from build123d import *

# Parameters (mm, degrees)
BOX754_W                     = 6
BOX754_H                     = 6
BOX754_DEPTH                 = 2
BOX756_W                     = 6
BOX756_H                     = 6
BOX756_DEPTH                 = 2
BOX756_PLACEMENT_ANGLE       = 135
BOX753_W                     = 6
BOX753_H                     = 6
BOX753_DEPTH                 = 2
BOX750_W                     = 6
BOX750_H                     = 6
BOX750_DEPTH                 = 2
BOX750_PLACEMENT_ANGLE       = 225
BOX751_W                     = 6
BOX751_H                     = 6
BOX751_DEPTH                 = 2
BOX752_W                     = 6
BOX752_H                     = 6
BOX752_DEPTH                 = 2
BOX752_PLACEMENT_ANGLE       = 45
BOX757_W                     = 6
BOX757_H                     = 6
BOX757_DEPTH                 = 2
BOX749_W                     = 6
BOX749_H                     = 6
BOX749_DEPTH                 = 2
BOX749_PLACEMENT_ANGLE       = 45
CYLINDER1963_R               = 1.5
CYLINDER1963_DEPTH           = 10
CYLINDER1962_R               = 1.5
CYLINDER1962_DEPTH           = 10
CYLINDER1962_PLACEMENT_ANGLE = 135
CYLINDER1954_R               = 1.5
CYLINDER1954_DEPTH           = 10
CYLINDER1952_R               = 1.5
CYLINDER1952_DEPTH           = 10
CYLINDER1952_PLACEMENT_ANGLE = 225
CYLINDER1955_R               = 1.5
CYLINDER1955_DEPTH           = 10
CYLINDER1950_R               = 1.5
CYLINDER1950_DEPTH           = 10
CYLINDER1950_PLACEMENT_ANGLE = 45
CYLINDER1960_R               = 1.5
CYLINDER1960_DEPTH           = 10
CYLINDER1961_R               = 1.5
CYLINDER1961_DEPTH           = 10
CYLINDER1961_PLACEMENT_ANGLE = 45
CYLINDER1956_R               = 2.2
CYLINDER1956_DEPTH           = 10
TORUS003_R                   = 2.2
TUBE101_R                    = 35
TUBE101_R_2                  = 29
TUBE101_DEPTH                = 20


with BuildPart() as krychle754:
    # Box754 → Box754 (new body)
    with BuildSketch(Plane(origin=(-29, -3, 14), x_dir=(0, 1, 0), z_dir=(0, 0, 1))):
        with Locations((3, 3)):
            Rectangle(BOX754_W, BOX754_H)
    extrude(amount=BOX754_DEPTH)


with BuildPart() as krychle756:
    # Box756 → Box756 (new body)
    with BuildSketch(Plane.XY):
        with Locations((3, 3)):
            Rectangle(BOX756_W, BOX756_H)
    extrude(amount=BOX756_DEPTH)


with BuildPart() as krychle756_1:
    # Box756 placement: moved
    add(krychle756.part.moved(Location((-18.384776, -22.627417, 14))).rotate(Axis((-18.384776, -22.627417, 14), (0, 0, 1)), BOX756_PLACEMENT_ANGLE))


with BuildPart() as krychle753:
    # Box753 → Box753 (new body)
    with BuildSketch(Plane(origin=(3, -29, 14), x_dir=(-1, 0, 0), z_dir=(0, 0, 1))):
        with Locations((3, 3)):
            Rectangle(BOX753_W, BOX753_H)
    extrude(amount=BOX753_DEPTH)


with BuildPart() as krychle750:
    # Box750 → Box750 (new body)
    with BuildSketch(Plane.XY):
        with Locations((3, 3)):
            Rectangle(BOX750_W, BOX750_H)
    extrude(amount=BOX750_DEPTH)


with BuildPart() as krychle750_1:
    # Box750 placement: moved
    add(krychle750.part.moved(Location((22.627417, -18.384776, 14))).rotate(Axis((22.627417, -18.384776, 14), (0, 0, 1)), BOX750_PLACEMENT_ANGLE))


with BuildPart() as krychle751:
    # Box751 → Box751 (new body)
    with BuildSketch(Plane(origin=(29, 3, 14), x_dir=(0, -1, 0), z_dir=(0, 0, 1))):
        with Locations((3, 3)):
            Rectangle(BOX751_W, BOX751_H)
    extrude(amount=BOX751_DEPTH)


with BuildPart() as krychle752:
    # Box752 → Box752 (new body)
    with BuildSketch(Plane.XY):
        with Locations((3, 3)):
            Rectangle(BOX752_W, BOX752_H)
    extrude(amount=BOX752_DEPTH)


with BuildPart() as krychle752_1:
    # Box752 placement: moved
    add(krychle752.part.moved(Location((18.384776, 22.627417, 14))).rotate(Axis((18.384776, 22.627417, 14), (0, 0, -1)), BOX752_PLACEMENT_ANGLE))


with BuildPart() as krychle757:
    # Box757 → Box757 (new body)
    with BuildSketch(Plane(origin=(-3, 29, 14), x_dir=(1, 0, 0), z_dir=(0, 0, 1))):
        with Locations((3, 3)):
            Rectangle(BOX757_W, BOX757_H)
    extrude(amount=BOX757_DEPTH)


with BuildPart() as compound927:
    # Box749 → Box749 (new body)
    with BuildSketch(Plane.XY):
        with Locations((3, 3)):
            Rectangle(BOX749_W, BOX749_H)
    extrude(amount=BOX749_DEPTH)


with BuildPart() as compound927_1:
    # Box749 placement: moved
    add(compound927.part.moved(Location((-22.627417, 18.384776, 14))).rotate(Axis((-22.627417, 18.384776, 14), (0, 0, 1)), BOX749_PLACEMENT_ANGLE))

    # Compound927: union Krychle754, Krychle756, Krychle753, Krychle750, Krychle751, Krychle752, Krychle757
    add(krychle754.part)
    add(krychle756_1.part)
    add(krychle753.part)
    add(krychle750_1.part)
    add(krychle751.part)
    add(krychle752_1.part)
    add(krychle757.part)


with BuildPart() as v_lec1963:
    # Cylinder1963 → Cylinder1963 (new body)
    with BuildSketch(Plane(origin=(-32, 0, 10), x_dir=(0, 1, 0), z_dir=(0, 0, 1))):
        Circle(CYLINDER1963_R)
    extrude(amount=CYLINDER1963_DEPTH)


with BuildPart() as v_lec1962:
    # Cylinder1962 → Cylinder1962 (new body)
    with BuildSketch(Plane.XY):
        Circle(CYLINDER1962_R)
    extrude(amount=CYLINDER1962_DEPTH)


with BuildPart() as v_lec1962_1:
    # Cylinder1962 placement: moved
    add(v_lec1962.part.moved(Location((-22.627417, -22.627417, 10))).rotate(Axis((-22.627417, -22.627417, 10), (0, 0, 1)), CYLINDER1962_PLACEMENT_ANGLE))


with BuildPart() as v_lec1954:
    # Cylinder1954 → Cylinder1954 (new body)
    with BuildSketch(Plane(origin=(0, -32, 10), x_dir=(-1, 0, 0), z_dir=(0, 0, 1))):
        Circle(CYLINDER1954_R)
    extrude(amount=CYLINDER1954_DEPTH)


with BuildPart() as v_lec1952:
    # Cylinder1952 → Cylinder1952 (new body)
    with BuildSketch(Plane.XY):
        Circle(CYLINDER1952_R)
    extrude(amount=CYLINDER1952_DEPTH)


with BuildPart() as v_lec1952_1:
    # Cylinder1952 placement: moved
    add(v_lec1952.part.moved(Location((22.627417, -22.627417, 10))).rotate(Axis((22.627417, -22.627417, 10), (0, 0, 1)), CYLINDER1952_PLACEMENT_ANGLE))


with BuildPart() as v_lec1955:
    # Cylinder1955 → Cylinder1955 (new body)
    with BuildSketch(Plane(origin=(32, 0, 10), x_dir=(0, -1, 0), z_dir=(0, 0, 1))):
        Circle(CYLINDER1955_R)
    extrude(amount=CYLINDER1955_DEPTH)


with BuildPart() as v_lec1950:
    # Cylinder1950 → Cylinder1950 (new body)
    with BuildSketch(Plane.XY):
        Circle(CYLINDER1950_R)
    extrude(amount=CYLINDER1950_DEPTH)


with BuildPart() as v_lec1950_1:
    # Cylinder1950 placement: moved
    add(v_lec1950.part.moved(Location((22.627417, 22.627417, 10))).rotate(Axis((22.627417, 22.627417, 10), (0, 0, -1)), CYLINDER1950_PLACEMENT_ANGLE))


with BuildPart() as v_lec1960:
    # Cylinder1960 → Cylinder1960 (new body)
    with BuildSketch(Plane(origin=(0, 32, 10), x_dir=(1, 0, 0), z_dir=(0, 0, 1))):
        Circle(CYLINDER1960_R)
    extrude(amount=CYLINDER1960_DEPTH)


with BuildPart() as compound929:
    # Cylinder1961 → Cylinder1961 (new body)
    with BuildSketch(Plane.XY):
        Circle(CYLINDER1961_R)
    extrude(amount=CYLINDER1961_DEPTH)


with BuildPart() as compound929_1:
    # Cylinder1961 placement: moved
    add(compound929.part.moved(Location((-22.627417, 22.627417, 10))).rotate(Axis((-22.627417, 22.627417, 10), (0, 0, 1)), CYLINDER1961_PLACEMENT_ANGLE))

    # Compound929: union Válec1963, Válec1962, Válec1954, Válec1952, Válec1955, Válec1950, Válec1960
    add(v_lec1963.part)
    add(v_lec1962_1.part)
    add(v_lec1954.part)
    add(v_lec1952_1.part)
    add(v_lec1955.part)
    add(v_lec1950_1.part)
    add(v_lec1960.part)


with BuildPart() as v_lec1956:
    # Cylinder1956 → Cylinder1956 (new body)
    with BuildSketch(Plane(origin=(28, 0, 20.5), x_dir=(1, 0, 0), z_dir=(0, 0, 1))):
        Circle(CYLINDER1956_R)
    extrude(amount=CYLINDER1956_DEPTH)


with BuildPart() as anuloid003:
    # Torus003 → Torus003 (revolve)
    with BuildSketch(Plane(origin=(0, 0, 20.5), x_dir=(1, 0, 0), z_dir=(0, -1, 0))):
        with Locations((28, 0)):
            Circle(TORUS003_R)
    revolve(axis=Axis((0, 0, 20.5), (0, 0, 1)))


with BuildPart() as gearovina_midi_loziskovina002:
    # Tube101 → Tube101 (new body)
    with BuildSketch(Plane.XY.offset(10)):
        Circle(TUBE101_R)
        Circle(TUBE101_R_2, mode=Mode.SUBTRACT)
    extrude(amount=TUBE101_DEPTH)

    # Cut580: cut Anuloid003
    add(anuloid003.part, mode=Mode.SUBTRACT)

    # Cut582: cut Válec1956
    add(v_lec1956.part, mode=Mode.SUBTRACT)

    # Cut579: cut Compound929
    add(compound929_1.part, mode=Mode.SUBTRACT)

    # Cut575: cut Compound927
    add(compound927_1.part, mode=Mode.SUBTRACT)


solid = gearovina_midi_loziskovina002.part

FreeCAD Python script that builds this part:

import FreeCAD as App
import Part
import Sketcher

V = App.Vector
Q = App.Units.Quantity

doc = App.newDocument("Part")
body = doc.addObject("PartDesign::Body", "Body")

# Sketch on XY plane
sketch1 = doc.addObject("Sketcher::SketchObject", "Sketch")
body.addObject(sketch1)
sketch1.AttachmentSupport = (doc.XY_Plane, [""])
sketch1.MapMode = "FlatFace"
sketch1.AttachmentOffset = App.Placement(V(0, 0, 14), App.Rotation())
sketch1.addGeometry(Part.LineSegment(V(-35, -3, 0), V(-29, -3, 0)), False)
sketch1.addGeometry(Part.LineSegment(V(-29, -3, 0), V(-29, 3, 0)), False)
sketch1.addGeometry(Part.LineSegment(V(-29, 3, 0), V(-35, 3, 0)), False)
sketch1.addGeometry(Part.LineSegment(V(-35, 3, 0), V(-35, -3, 0)), False)
sketch1.addConstraint(Sketcher.Constraint("Coincident", 0, 2, 1, 1))
sketch1.addConstraint(Sketcher.Constraint("Coincident", 1, 2, 2, 1))
sketch1.addConstraint(Sketcher.Constraint("Coincident", 2, 2, 3, 1))
sketch1.addConstraint(Sketcher.Constraint("Coincident", 3, 2, 0, 1))
sketch1.addConstraint(Sketcher.Constraint("Horizontal", 0))
sketch1.addConstraint(Sketcher.Constraint("Vertical", 1))
sketch1.addConstraint(Sketcher.Constraint("Horizontal", 2))
sketch1.addConstraint(Sketcher.Constraint("Vertical", 3))
sketch1.addConstraint(Sketcher.Constraint("Equal", 2, 1))
sketch1.addConstraint(Sketcher.Constraint("DistanceX", 0, 1, 0, 2, Q("6 mm")))
sketch1.addConstraint(Sketcher.Constraint("DistanceX", 0, 2, -1, 1, Q("29 mm")))
sketch1.addConstraint(Sketcher.Constraint("DistanceY", 0, 2, -1, 1, Q("3 mm")))
pad1 = doc.addObject("PartDesign::Pad", "Pad")
body.addObject(pad1)
pad1.Profile = sketch1
pad1.Length = 2
body2 = doc.addObject("PartDesign::Body", "Body001")

# Sketch on XY plane
sketch2 = doc.addObject("Sketcher::SketchObject", "Sketch001")
body2.addObject(sketch2)
sketch2.AttachmentSupport = (doc.getObject("XY_Plane001"), [""])
sketch2.MapMode = "FlatFace"
sketch2.addGeometry(Part.LineSegment(V(0, 6, 0), V(0, 0, 0)), False)
sketch2.addGeometry(Part.LineSegment(V(0, 0, 0), V(6, 0, 0)), False)
sketch2.addGeometry(Part.LineSegment(V(6, 0, 0), V(6, 6, 0)), False)
sketch2.addGeometry(Part.LineSegment(V(6, 6, 0), V(0, 6, 0)), False)
sketch2.addConstraint(Sketcher.Constraint("Coincident", 0, 2, 1, 1))
sketch2.addConstraint(Sketcher.Constraint("Coincident", 1, 2, 2, 1))
sketch2.addConstraint(Sketcher.Constraint("Coincident", 2, 2, 3, 1))
sketch2.addConstraint(Sketcher.Constraint("Coincident", 3, 2, 0, 1))
sketch2.addConstraint(Sketcher.Constraint("Vertical", 0))
sketch2.addConstraint(Sketcher.Constraint("Horizontal", 1))
sketch2.addConstraint(Sketcher.Constraint("Vertical", 2))
sketch2.addConstraint(Sketcher.Constraint("Horizontal", 3))
sketch2.addConstraint(Sketcher.Constraint("Coincident", 0, 2, -1, 1))
sketch2.addConstraint(Sketcher.Constraint("Equal", 3, 0))
sketch2.addConstraint(Sketcher.Constraint("DistanceX", 1, 1, 1, 2, Q("6 mm")))
pad2 = doc.addObject("PartDesign::Pad", "Pad001")
body2.addObject(pad2)
pad2.Profile = sketch2
pad2.Length = 2
body3 = doc.addObject("PartDesign::Body", "Body002")
doc.recompute()

body2.Placement = App.Placement(V(-18.384776, -22.627417, 14), App.Rotation(V(0, 0, 1), 135))
boolean = doc.addObject("PartDesign::Boolean", "Boolean")
body3.addObject(boolean)
boolean.Type = "Fuse"
boolean.addObjects([body2])
body4 = doc.addObject("PartDesign::Body", "Body003")

# Sketch on XY plane
sketch3 = doc.addObject("Sketcher::SketchObject", "Sketch002")
body4.addObject(sketch3)
sketch3.AttachmentSupport = (doc.getObject("XY_Plane003"), [""])
sketch3.MapMode = "FlatFace"
sketch3.AttachmentOffset = App.Placement(V(0, 0, 14), App.Rotation())
sketch3.addGeometry(Part.LineSegment(V(3, -35, 0), V(3, -29, 0)), False)
sketch3.addGeometry(Part.LineSegment(V(3, -29, 0), V(-3, -29, 0)), False)
sketch3.addGeometry(Part.LineSegment(V(-3, -29, 0), V(-3, -35, 0)), False)
sketch3.addGeometry(Part.LineSegment(V(-3, -35, 0), V(3, -35, 0)), False)
sketch3.addConstraint(Sketcher.Constraint("Coincident", 0, 2, 1, 1))
sketch3.addConstraint(Sketcher.Constraint("Coincident", 1, 2, 2, 1))
sketch3.addConstraint(Sketcher.Constraint("Coincident", 2, 2, 3, 1))
sketch3.addConstraint(Sketcher.Constraint("Coincident", 3, 2, 0, 1))
sketch3.addConstraint(Sketcher.Constraint("Vertical", 0))
sketch3.addConstraint(Sketcher.Constraint("Horizontal", 1))
sketch3.addConstraint(Sketcher.Constraint("Vertical", 2))
sketch3.addConstraint(Sketcher.Constraint("Horizontal", 3))
sketch3.addConstraint(Sketcher.Constraint("Equal", 3, 0))
sketch3.addConstraint(Sketcher.Constraint("DistanceX", 1, 2, 1, 1, Q("6 mm")))
sketch3.addConstraint(Sketcher.Constraint("DistanceX", -1, 1, 0, 2, Q("3 mm")))
sketch3.addConstraint(Sketcher.Constraint("DistanceY", 0, 2, -1, 1, Q("29 mm")))
pad3 = doc.addObject("PartDesign::Pad", "Pad002")
body4.addObject(pad3)
pad3.Profile = sketch3
pad3.Length = 2
body5 = doc.addObject("PartDesign::Body", "Body004")

# Sketch on XY plane
sketch4 = doc.addObject("Sketcher::SketchObject", "Sketch003")
body5.addObject(sketch4)
sketch4.AttachmentSupport = (doc.getObject("XY_Plane004"), [""])
sketch4.MapMode = "FlatFace"
sketch4.addGeometry(Part.LineSegment(V(0, 6, 0), V(0, 0, 0)), False)
sketch4.addGeometry(Part.LineSegment(V(0, 0, 0), V(6, 0, 0)), False)
sketch4.addGeometry(Part.LineSegment(V(6, 0, 0), V(6, 6, 0)), False)
sketch4.addGeometry(Part.LineSegment(V(6, 6, 0), V(0, 6, 0)), False)
sketch4.addConstraint(Sketcher.Constraint("Coincident", 0, 2, 1, 1))
sketch4.addConstraint(Sketcher.Constraint("Coincident", 1, 2, 2, 1))
sketch4.addConstraint(Sketcher.Constraint("Coincident", 2, 2, 3, 1))
sketch4.addConstraint(Sketcher.Constraint("Coincident", 3, 2, 0, 1))
sketch4.addConstraint(Sketcher.Constraint("Vertical", 0))
sketch4.addConstraint(Sketcher.Constraint("Horizontal", 1))
sketch4.addConstraint(Sketcher.Constraint("Vertical", 2))
sketch4.addConstraint(Sketcher.Constraint("Horizontal", 3))
sketch4.addConstraint(Sketcher.Constraint("Coincident", 0, 2, -1, 1))
sketch4.addConstraint(Sketcher.Constraint("Equal", 3, 0))
sketch4.addConstraint(Sketcher.Constraint("DistanceX", 1, 1, 1, 2, Q("6 mm")))
pad4 = doc.addObject("PartDesign::Pad", "Pad003")
body5.addObject(pad4)
pad4.Profile = sketch4
pad4.Length = 2
body6 = doc.addObject("PartDesign::Body", "Body005")
doc.recompute()

body5.Placement = App.Placement(V(22.627417, -18.384776, 14), App.Rotation(V(0, 0, 1), 225))
boolean2 = doc.addObject("PartDesign::Boolean", "Boolean001")
body6.addObject(boolean2)
boolean2.Type = "Fuse"
boolean2.addObjects([body5])
body7 = doc.addObject("PartDesign::Body", "Body006")

# Sketch on XY plane
sketch5 = doc.addObject("Sketcher::SketchObject", "Sketch004")
body7.addObject(sketch5)
sketch5.AttachmentSupport = (doc.getObject("XY_Plane006"), [""])
sketch5.MapMode = "FlatFace"
sketch5.AttachmentOffset = App.Placement(V(0, 0, 14), App.Rotation())
sketch5.addGeometry(Part.LineSegment(V(35, 3, 0), V(29, 3, 0)), False)
sketch5.addGeometry(Part.LineSegment(V(29, 3, 0), V(29, -3, 0)), False)
sketch5.addGeometry(Part.LineSegment(V(29, -3, 0), V(35, -3, 0)), False)
sketch5.addGeometry(Part.LineSegment(V(35, -3, 0), V(35, 3, 0)), False)
sketch5.addConstraint(Sketcher.Constraint("Coincident", 0, 2, 1, 1))
sketch5.addConstraint(Sketcher.Constraint("Coincident", 1, 2, 2, 1))
sketch5.addConstraint(Sketcher.Constraint("Coincident", 2, 2, 3, 1))
sketch5.addConstraint(Sketcher.Constraint("Coincident", 3, 2, 0, 1))
sketch5.addConstraint(Sketcher.Constraint("Horizontal", 0))
sketch5.addConstraint(Sketcher.Constraint("Vertical", 1))
sketch5.addConstraint(Sketcher.Constraint("Horizontal", 2))
sketch5.addConstraint(Sketcher.Constraint("Vertical", 3))
sketch5.addConstraint(Sketcher.Constraint("Equal", 2, 1))
sketch5.addConstraint(Sketcher.Constraint("DistanceX", 0, 2, 0, 1, Q("6 mm")))
sketch5.addConstraint(Sketcher.Constraint("DistanceX", -1, 1, 0, 2, Q("29 mm")))
sketch5.addConstraint(Sketcher.Constraint("DistanceY", -1, 1, 0, 2, Q("3 mm")))
pad5 = doc.addObject("PartDesign::Pad", "Pad004")
body7.addObject(pad5)
pad5.Profile = sketch5
pad5.Length = 2
body8 = doc.addObject("PartDesign::Body", "Body007")

# Sketch on XY plane
sketch6 = doc.addObject("Sketcher::SketchObject", "Sketch005")
body8.addObject(sketch6)
sketch6.AttachmentSupport = (doc.getObject("XY_Plane007"), [""])
sketch6.MapMode = "FlatFace"
sketch6.addGeometry(Part.LineSegment(V(0, 6, 0), V(0, 0, 0)), False)
sketch6.addGeometry(Part.LineSegment(V(0, 0, 0), V(6, 0, 0)), False)
sketch6.addGeometry(Part.LineSegment(V(6, 0, 0), V(6, 6, 0)), False)
sketch6.addGeometry(Part.LineSegment(V(6, 6, 0), V(0, 6, 0)), False)
sketch6.addConstraint(Sketcher.Constraint("Coincident", 0, 2, 1, 1))
sketch6.addConstraint(Sketcher.Constraint("Coincident", 1, 2, 2, 1))
sketch6.addConstraint(Sketcher.Constraint("Coincident", 2, 2, 3, 1))
sketch6.addConstraint(Sketcher.Constraint("Coincident", 3, 2, 0, 1))
sketch6.addConstraint(Sketcher.Constraint("Vertical", 0))
sketch6.addConstraint(Sketcher.Constraint("Horizontal", 1))
sketch6.addConstraint(Sketcher.Constraint("Vertical", 2))
sketch6.addConstraint(Sketcher.Constraint("Horizontal", 3))
sketch6.addConstraint(Sketcher.Constraint("Coincident", 0, 2, -1, 1))
sketch6.addConstraint(Sketcher.Constraint("Equal", 3, 0))
sketch6.addConstraint(Sketcher.Constraint("DistanceX", 1, 1, 1, 2, Q("6 mm")))
pad6 = doc.addObject("PartDesign::Pad", "Pad005")
body8.addObject(pad6)
pad6.Profile = sketch6
pad6.Length = 2
body9 = doc.addObject("PartDesign::Body", "Body008")
doc.recompute()

body8.Placement = App.Placement(V(18.384776, 22.627417, 14), App.Rotation(V(0, 0, -1), 45))
boolean3 = doc.addObject("PartDesign::Boolean", "Boolean002")
body9.addObject(boolean3)
boolean3.Type = "Fuse"
boolean3.addObjects([body8])
body10 = doc.addObject("PartDesign::Body", "Body009")

# Sketch on XY plane
sketch7 = doc.addObject("Sketcher::SketchObject", "Sketch006")
body10.addObject(sketch7)
sketch7.AttachmentSupport = (doc.getObject("XY_Plane009"), [""])
sketch7.MapMode = "FlatFace"
sketch7.AttachmentOffset = App.Placement(V(0, 0, 14), App.Rotation())
sketch7.addGeometry(Part.LineSegment(V(-3, 35, 0), V(-3, 29, 0)), False)
sketch7.addGeometry(Part.LineSegment(V(-3, 29, 0), V(3, 29, 0)), False)
sketch7.addGeometry(Part.LineSegment(V(3, 29, 0), V(3, 35, 0)), False)
sketch7.addGeometry(Part.LineSegment(V(3, 35, 0), V(-3, 35, 0)), False)
sketch7.addConstraint(Sketcher.Constraint("Coincident", 0, 2, 1, 1))
sketch7.addConstraint(Sketcher.Constraint("Coincident", 1, 2, 2, 1))
sketch7.addConstraint(Sketcher.Constraint("Coincident", 2, 2, 3, 1))
sketch7.addConstraint(Sketcher.Constraint("Coincident", 3, 2, 0, 1))
sketch7.addConstraint(Sketcher.Constraint("Vertical", 0))
sketch7.addConstraint(Sketcher.Constraint("Horizontal", 1))
sketch7.addConstraint(Sketcher.Constraint("Vertical", 2))
sketch7.addConstraint(Sketcher.Constraint("Horizontal", 3))
sketch7.addConstraint(Sketcher.Constraint("Equal", 3, 0))
sketch7.addConstraint(Sketcher.Constraint("DistanceX", 1, 1, 1, 2, Q("6 mm")))
sketch7.addConstraint(Sketcher.Constraint("DistanceX", 0, 2, -1, 1, Q("3 mm")))
sketch7.addConstraint(Sketcher.Constraint("DistanceY", -1, 1, 0, 2, Q("29 mm")))
pad7 = doc.addObject("PartDesign::Pad", "Pad006")
body10.addObject(pad7)
pad7.Profile = sketch7
pad7.Length = 2
body11 = doc.addObject("PartDesign::Body", "Body010")

# Sketch on XY plane
sketch8 = doc.addObject("Sketcher::SketchObject", "Sketch007")
body11.addObject(sketch8)
sketch8.AttachmentSupport = (doc.getObject("XY_Plane010"), [""])
sketch8.MapMode = "FlatFace"
sketch8.addGeometry(Part.LineSegment(V(0, 6, 0), V(0, 0, 0)), False)
sketch8.addGeometry(Part.LineSegment(V(0, 0, 0), V(6, 0, 0)), False)
sketch8.addGeometry(Part.LineSegment(V(6, 0, 0), V(6, 6, 0)), False)
sketch8.addGeometry(Part.LineSegment(V(6, 6, 0), V(0, 6, 0)), False)
sketch8.addConstraint(Sketcher.Constraint("Coincident", 0, 2, 1, 1))
sketch8.addConstraint(Sketcher.Constraint("Coincident", 1, 2, 2, 1))
sketch8.addConstraint(Sketcher.Constraint("Coincident", 2, 2, 3, 1))
sketch8.addConstraint(Sketcher.Constraint("Coincident", 3, 2, 0, 1))
sketch8.addConstraint(Sketcher.Constraint("Vertical", 0))
sketch8.addConstraint(Sketcher.Constraint("Horizontal", 1))
sketch8.addConstraint(Sketcher.Constraint("Vertical", 2))
sketch8.addConstraint(Sketcher.Constraint("Horizontal", 3))
sketch8.addConstraint(Sketcher.Constraint("Coincident", 0, 2, -1, 1))
sketch8.addConstraint(Sketcher.Constraint("Equal", 3, 0))
sketch8.addConstraint(Sketcher.Constraint("DistanceX", 1, 1, 1, 2, Q("6 mm")))
pad8 = doc.addObject("PartDesign::Pad", "Pad007")
body11.addObject(pad8)
pad8.Profile = sketch8
pad8.Length = 2
body12 = doc.addObject("PartDesign::Body", "Body011")
body12.AllowCompound = True
doc.recompute()

body11.Placement = App.Placement(V(-22.627417, 18.384776, 14), App.Rotation(V(0, 0, 1), 45))
boolean4 = doc.addObject("PartDesign::Boolean", "Boolean003")
body12.addObject(boolean4)
boolean4.Type = "Fuse"
boolean4.addObjects([body11])
doc.recompute()

boolean5 = doc.addObject("PartDesign::Boolean", "Boolean004")
body12.addObject(boolean5)
boolean5.Type = "Fuse"
boolean5.addObjects([body])
doc.recompute()

boolean6 = doc.addObject("PartDesign::Boolean", "Boolean005")
body12.addObject(boolean6)
boolean6.Type = "Fuse"
boolean6.addObjects([body3])
doc.recompute()

boolean7 = doc.addObject("PartDesign::Boolean", "Boolean006")
body12.addObject(boolean7)
boolean7.Type = "Fuse"
boolean7.addObjects([body4])
doc.recompute()

boolean8 = doc.addObject("PartDesign::Boolean", "Boolean007")
body12.addObject(boolean8)
boolean8.Type = "Fuse"
boolean8.addObjects([body6])
doc.recompute()

boolean9 = doc.addObject("PartDesign::Boolean", "Boolean008")
body12.addObject(boolean9)
boolean9.Type = "Fuse"
boolean9.addObjects([body7])
doc.recompute()

boolean10 = doc.addObject("PartDesign::Boolean", "Boolean009")
body12.addObject(boolean10)
boolean10.Type = "Fuse"
boolean10.addObjects([body9])
doc.recompute()

boolean11 = doc.addObject("PartDesign::Boolean", "Boolean010")
body12.addObject(boolean11)
boolean11.Type = "Fuse"
boolean11.addObjects([body10])
body13 = doc.addObject("PartDesign::Body", "Body012")

# Sketch on XY plane
sketch9 = doc.addObject("Sketcher::SketchObject", "Sketch008")
body13.addObject(sketch9)
sketch9.AttachmentSupport = (doc.getObject("XY_Plane012"), [""])
sketch9.MapMode = "FlatFace"
sketch9.AttachmentOffset = App.Placement(V(0, 0, 10), App.Rotation())
sketch9.addGeometry(Part.Circle(V(-32, 0, 0), V(0, 0, 1), 1.5), False)
sketch9.addConstraint(Sketcher.Constraint("PointOnObject", 0, 3, -1))
sketch9.addConstraint(Sketcher.Constraint("Diameter", 0, Q("3 mm")))
sketch9.addConstraint(Sketcher.Constraint("DistanceX", 0, 3, -1, 1, Q("32 mm")))
pad9 = doc.addObject("PartDesign::Pad", "Pad008")
body13.addObject(pad9)
pad9.Profile = sketch9
pad9.Length = 10
body14 = doc.addObject("PartDesign::Body", "Body013")

# Sketch on XY plane
sketch10 = doc.addObject("Sketcher::SketchObject", "Sketch009")
body14.addObject(sketch10)
sketch10.AttachmentSupport = (doc.getObject("XY_Plane013"), [""])
sketch10.MapMode = "FlatFace"
sketch10.addGeometry(Part.Circle(V(0, 0, 0), V(0, 0, 1), 1.5), False)
sketch10.addConstraint(Sketcher.Constraint("Coincident", 0, 3, -1, 1))
sketch10.addConstraint(Sketcher.Constraint("Diameter", 0, Q("3 mm")))
pad10 = doc.addObject("PartDesign::Pad", "Pad009")
body14.addObject(pad10)
pad10.Profile = sketch10
pad10.Length = 10
body15 = doc.addObject("PartDesign::Body", "Body014")
doc.recompute()

body14.Placement = App.Placement(V(-22.627417, -22.627417, 10), App.Rotation(V(0, 0, 1), 135))
boolean12 = doc.addObject("PartDesign::Boolean", "Boolean011")
body15.addObject(boolean12)
boolean12.Type = "Fuse"
boolean12.addObjects([body14])
body16 = doc.addObject("PartDesign::Body", "Body015")

# Sketch on XY plane
sketch11 = doc.addObject("Sketcher::SketchObject", "Sketch010")
body16.addObject(sketch11)
sketch11.AttachmentSupport = (doc.getObject("XY_Plane015"), [""])
sketch11.MapMode = "FlatFace"
sketch11.AttachmentOffset = App.Placement(V(0, 0, 10), App.Rotation())
sketch11.addGeometry(Part.Circle(V(0, -32, 0), V(0, 0, 1), 1.5), False)
sketch11.addConstraint(Sketcher.Constraint("PointOnObject", 0, 3, -2))
sketch11.addConstraint(Sketcher.Constraint("Diameter", 0, Q("3 mm")))
sketch11.addConstraint(Sketcher.Constraint("DistanceY", 0, 3, -1, 1, Q("32 mm")))
pad11 = doc.addObject("PartDesign::Pad", "Pad010")
body16.addObject(pad11)
pad11.Profile = sketch11
pad11.Length = 10
body17 = doc.addObject("PartDesign::Body", "Body016")

# Sketch on XY plane
sketch12 = doc.addObject("Sketcher::SketchObject", "Sketch011")
body17.addObject(sketch12)
sketch12.AttachmentSupport = (doc.getObject("XY_Plane016"), [""])
sketch12.MapMode = "FlatFace"
sketch12.addGeometry(Part.Circle(V(0, 0, 0), V(0, 0, 1), 1.5), False)
sketch12.addConstraint(Sketcher.Constraint("Coincident", 0, 3, -1, 1))
sketch12.addConstraint(Sketcher.Constraint("Diameter", 0, Q("3 mm")))
pad12 = doc.addObject("PartDesign::Pad", "Pad011")
body17.addObject(pad12)
pad12.Profile = sketch12
pad12.Length = 10
body18 = doc.addObject("PartDesign::Body", "Body017")
doc.recompute()

body17.Placement = App.Placement(V(22.627417, -22.627417, 10), App.Rotation(V(0, 0, 1), 225))
boolean13 = doc.addObject("PartDesign::Boolean", "Boolean012")
body18.addObject(boolean13)
boolean13.Type = "Fuse"
boolean13.addObjects([body17])
body19 = doc.addObject("PartDesign::Body", "Body018")

# Sketch on XY plane
sketch13 = doc.addObject("Sketcher::SketchObject", "Sketch012")
body19.addObject(sketch13)
sketch13.AttachmentSupport = (doc.getObject("XY_Plane018"), [""])
sketch13.MapMode = "FlatFace"
sketch13.AttachmentOffset = App.Placement(V(0, 0, 10), App.Rotation())
sketch13.addGeometry(Part.Circle(V(32, 0, 0), V(0, 0, 1), 1.5), False)
sketch13.addConstraint(Sketcher.Constraint("PointOnObject", 0, 3, -1))
sketch13.addConstraint(Sketcher.Constraint("Diameter", 0, Q("3 mm")))
sketch13.addConstraint(Sketcher.Constraint("DistanceX", -1, 1, 0, 3, Q("32 mm")))
pad13 = doc.addObject("PartDesign::Pad", "Pad012")
body19.addObject(pad13)
pad13.Profile = sketch13
pad13.Length = 10
body20 = doc.addObject("PartDesign::Body", "Body019")

# Sketch on XY plane
sketch14 = doc.addObject("Sketcher::SketchObject", "Sketch013")
body20.addObject(sketch14)
sketch14.AttachmentSupport = (doc.getObject("XY_Plane019"), [""])
sketch14.MapMode = "FlatFace"
sketch14.addGeometry(Part.Circle(V(0, 0, 0), V(0, 0, 1), 1.5), False)
sketch14.addConstraint(Sketcher.Constraint("Coincident", 0, 3, -1, 1))
sketch14.addConstraint(Sketcher.Constraint("Diameter", 0, Q("3 mm")))
pad14 = doc.addObject("PartDesign::Pad", "Pad013")
body20.addObject(pad14)
pad14.Profile = sketch14
pad14.Length = 10
body21 = doc.addObject("PartDesign::Body", "Body020")
doc.recompute()

body20.Placement = App.Placement(V(22.627417, 22.627417, 10), App.Rotation(V(0, 0, -1), 45))
boolean14 = doc.addObject("PartDesign::Boolean", "Boolean013")
body21.addObject(boolean14)
boolean14.Type = "Fuse"
boolean14.addObjects([body20])
body22 = doc.addObject("PartDesign::Body", "Body021")

# Sketch on XY plane
sketch15 = doc.addObject("Sketcher::SketchObject", "Sketch014")
body22.addObject(sketch15)
sketch15.AttachmentSupport = (doc.getObject("XY_Plane021"), [""])
sketch15.MapMode = "FlatFace"
sketch15.AttachmentOffset = App.Placement(V(0, 0, 10), App.Rotation())
sketch15.addGeometry(Part.Circle(V(0, 32, 0), V(0, 0, 1), 1.5), False)
sketch15.addConstraint(Sketcher.Constraint("PointOnObject", 0, 3, -2))
sketch15.addConstraint(Sketcher.Constraint("Diameter", 0, Q("3 mm")))
sketch15.addConstraint(Sketcher.Constraint("DistanceY", -1, 1, 0, 3, Q("32 mm")))
pad15 = doc.addObject("PartDesign::Pad", "Pad014")
body22.addObject(pad15)
pad15.Profile = sketch15
pad15.Length = 10
body23 = doc.addObject("PartDesign::Body", "Body022")

# Sketch on XY plane
sketch16 = doc.addObject("Sketcher::SketchObject", "Sketch015")
body23.addObject(sketch16)
sketch16.AttachmentSupport = (doc.getObject("XY_Plane022"), [""])
sketch16.MapMode = "FlatFace"
sketch16.addGeometry(Part.Circle(V(0, 0, 0), V(0, 0, 1), 1.5), False)
sketch16.addConstraint(Sketcher.Constraint("Coincident", 0, 3, -1, 1))
sketch16.addConstraint(Sketcher.Constraint("Diameter", 0, Q("3 mm")))
pad16 = doc.addObject("PartDesign::Pad", "Pad015")
body23.addObject(pad16)
pad16.Profile = sketch16
pad16.Length = 10
body24 = doc.addObject("PartDesign::Body", "Body023")
body24.AllowCompound = True
doc.recompute()

body23.Placement = App.Placement(V(-22.627417, 22.627417, 10), App.Rotation(V(0, 0, 1), 45))
boolean15 = doc.addObject("PartDesign::Boolean", "Boolean014")
body24.addObject(boolean15)
boolean15.Type = "Fuse"
boolean15.addObjects([body23])
doc.recompute()

boolean16 = doc.addObject("PartDesign::Boolean", "Boolean015")
body24.addObject(boolean16)
boolean16.Type = "Fuse"
boolean16.addObjects([body13])
doc.recompute()

boolean17 = doc.addObject("PartDesign::Boolean", "Boolean016")
body24.addObject(boolean17)
boolean17.Type = "Fuse"
boolean17.addObjects([body15])
doc.recompute()

boolean18 = doc.addObject("PartDesign::Boolean", "Boolean017")
body24.addObject(boolean18)
boolean18.Type = "Fuse"
boolean18.addObjects([body16])
doc.recompute()

boolean19 = doc.addObject("PartDesign::Boolean", "Boolean018")
body24.addObject(boolean19)
boolean19.Type = "Fuse"
boolean19.addObjects([body18])
doc.recompute()

boolean20 = doc.addObject("PartDesign::Boolean", "Boolean019")
body24.addObject(boolean20)
boolean20.Type = "Fuse"
boolean20.addObjects([body19])
doc.recompute()

boolean21 = doc.addObject("PartDesign::Boolean", "Boolean020")
body24.addObject(boolean21)
boolean21.Type = "Fuse"
boolean21.addObjects([body21])
doc.recompute()

boolean22 = doc.addObject("PartDesign::Boolean", "Boolean021")
body24.addObject(boolean22)
boolean22.Type = "Fuse"
boolean22.addObjects([body22])
body25 = doc.addObject("PartDesign::Body", "Body024")

# Sketch on XY plane
sketch17 = doc.addObject("Sketcher::SketchObject", "Sketch016")
body25.addObject(sketch17)
sketch17.AttachmentSupport = (doc.getObject("XY_Plane024"), [""])
sketch17.MapMode = "FlatFace"
sketch17.AttachmentOffset = App.Placement(V(0, 0, 20.5), App.Rotation())
sketch17.addGeometry(Part.Circle(V(28, 0, 0), V(0, 0, 1), 2.2), False)
sketch17.addConstraint(Sketcher.Constraint("PointOnObject", 0, 3, -1))
sketch17.addConstraint(Sketcher.Constraint("Diameter", 0, Q("4.4 mm")))
sketch17.addConstraint(Sketcher.Constraint("DistanceX", -1, 1, 0, 3, Q("28 mm")))
pad17 = doc.addObject("PartDesign::Pad", "Pad016")
body25.addObject(pad17)
pad17.Profile = sketch17
pad17.Length = 10
body26 = doc.addObject("PartDesign::Body", "Body025")

# Sketch on XZ plane
sketch18 = doc.addObject("Sketcher::SketchObject", "Sketch017")
body26.addObject(sketch18)
sketch18.AttachmentSupport = (doc.getObject("XZ_Plane025"), [""])
sketch18.MapMode = "FlatFace"
sketch18.addGeometry(Part.Circle(V(28, 20.5, 0), V(0, 0, 1), 2.2), False)
sketch18.addConstraint(Sketcher.Constraint("Diameter", 0, Q("4.4 mm")))
sketch18.addConstraint(Sketcher.Constraint("DistanceX", -1, 1, 0, 3, Q("28 mm")))
sketch18.addConstraint(Sketcher.Constraint("DistanceY", -1, 1, 0, 3, Q("20.5 mm")))
revolution = doc.addObject("PartDesign::Revolution", "Revolution")
body26.addObject(revolution)
revolution.Profile = sketch18
revolution.ReferenceAxis = (sketch18, ["V_Axis"])
revolution.Angle = 360
body27 = doc.addObject("PartDesign::Body", "Body026")

# Sketch on XY plane
sketch19 = doc.addObject("Sketcher::SketchObject", "Sketch018")
body27.addObject(sketch19)
sketch19.AttachmentSupport = (doc.getObject("XY_Plane026"), [""])
sketch19.MapMode = "FlatFace"
sketch19.AttachmentOffset = App.Placement(V(0, 0, 10), App.Rotation())
sketch19.addGeometry(Part.Circle(V(0, 0, 0), V(0, 0, 1), 35), False)
sketch19.addGeometry(Part.Circle(V(0, 0, 0), V(0, 0, 1), 29), False)
sketch19.addConstraint(Sketcher.Constraint("Coincident", 0, 3, -1, 1))
sketch19.addConstraint(Sketcher.Constraint("Coincident", 1, 3, -1, 1))
sketch19.addConstraint(Sketcher.Constraint("Diameter", 0, Q("70 mm")))
sketch19.addConstraint(Sketcher.Constraint("Diameter", 1, Q("58 mm")))
pad18 = doc.addObject("PartDesign::Pad", "Pad017")
body27.addObject(pad18)
pad18.Profile = sketch19
pad18.Length = 20
doc.recompute()

boolean23 = doc.addObject("PartDesign::Boolean", "Boolean022")
body27.addObject(boolean23)
boolean23.Type = "Cut"
boolean23.addObjects([body26])
doc.recompute()

boolean24 = doc.addObject("PartDesign::Boolean", "Boolean023")
body27.addObject(boolean24)
boolean24.Type = "Cut"
boolean24.addObjects([body25])
doc.recompute()

boolean25 = doc.addObject("PartDesign::Boolean", "Boolean024")
body27.addObject(boolean25)
boolean25.Type = "Cut"
boolean25.addObjects([body24])
doc.recompute()

boolean26 = doc.addObject("PartDesign::Boolean", "Boolean025")
body27.addObject(boolean26)
boolean26.Type = "Cut"
boolean26.addObjects([body12])

doc.recompute()
